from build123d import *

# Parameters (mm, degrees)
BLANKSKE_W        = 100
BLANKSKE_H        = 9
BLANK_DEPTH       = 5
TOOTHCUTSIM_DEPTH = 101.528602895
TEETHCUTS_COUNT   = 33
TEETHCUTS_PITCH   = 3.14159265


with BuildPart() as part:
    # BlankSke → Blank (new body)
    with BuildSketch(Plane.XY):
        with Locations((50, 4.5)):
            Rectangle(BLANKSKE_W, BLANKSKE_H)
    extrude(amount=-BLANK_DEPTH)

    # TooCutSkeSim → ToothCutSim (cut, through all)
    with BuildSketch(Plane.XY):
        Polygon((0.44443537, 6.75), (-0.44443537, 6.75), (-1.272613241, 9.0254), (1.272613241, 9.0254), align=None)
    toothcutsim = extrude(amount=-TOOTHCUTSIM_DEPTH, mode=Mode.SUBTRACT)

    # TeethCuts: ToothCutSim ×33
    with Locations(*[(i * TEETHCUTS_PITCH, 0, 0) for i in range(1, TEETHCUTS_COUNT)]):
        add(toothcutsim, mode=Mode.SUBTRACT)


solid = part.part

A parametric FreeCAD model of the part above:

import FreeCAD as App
import Part
import Sketcher
from FreeCAD import Vector
Q = App.Units.Quantity

doc = App.newDocument("Part")
body = doc.addObject("PartDesign::Body", "Body")

# Sketch on XY plane
sketch1 = body.newObject("Sketcher::SketchObject", "Sketch")
sketch1.AttachmentSupport = (doc.getObject("XY_Plane"), [""])
sketch1.MapMode = "FlatFace"
sketch1.addGeometry([
    Part.LineSegment(Vector(0, 9, 0), Vector(0, 0, 0)),
    Part.LineSegment(Vector(0, 0, 0), Vector(100, 0, 0)),
    Part.LineSegment(Vector(100, 0, 0), Vector(100, 9, 0)),
    Part.LineSegment(Vector(100, 9, 0), Vector(0, 9, 0)),
], False)
sketch1.addConstraint([
    Sketcher.Constraint("Coincident", 0, 2, 1, 1),
    Sketcher.Constraint("Coincident", 1, 2, 2, 1),
    Sketcher.Constraint("Coincident", 2, 2, 3, 1),
    Sketcher.Constraint("Coincident", 3, 2, 0, 1),
    Sketcher.Constraint("Vertical", 0),
    Sketcher.Constraint("Horizontal", 1),
    Sketcher.Constraint("Vertical", 2),
    Sketcher.Constraint("Horizontal", 3),
    Sketcher.Constraint("Coincident", 0, 2, -1, 1),
    Sketcher.Constraint("DistanceX", 1, 1, 1, 2, Q("100 mm")),
    Sketcher.Constraint("DistanceY", 0, 2, 0, 1, Q("9 mm")),
])
pad1 = body.newObject("PartDesign::Pad", "Pad")
pad1.Profile = sketch1
pad1.Length = 5
pad1.Reversed = True

# Sketch on XY plane
sketch2 = body.newObject("Sketcher::SketchObject", "Sketch001")
sketch2.AttachmentSupport = (doc.getObject("XY_Plane"), [""])
sketch2.MapMode = "FlatFace"
sketch2.addGeometry([
    Part.LineSegment(Vector(-0.444435, 6.75, 0), Vector(0.444435, 6.75, 0)),
    Part.LineSegment(Vector(0.444435, 6.75, 0), Vector(1.272613, 9.0254, 0)),
    Part.LineSegment(Vector(1.272613, 9.0254, 0), Vector(-1.272613, 9.0254, 0)),
    Part.LineSegment(Vector(-1.272613, 9.0254, 0), Vector(-0.444435, 6.75, 0)),
], False)
sketch2.addConstraint([
    Sketcher.Constraint("Coincident", 0, 2, 1, 1),
    Sketcher.Constraint("Coincident", 1, 2, 2, 1),
    Sketcher.Constraint("Coincident", 2, 2, 3, 1),
    Sketcher.Constraint("Coincident", 3, 2, 0, 1),
    Sketcher.Constraint("Horizontal", 0),
    Sketcher.Constraint("Horizontal", 2),
    Sketcher.Constraint("Equal", 1, 3),
    Sketcher.Constraint("Angle", 1, Q("70 deg")),
    Sketcher.Constraint("DistanceY", -1, 1, 0, 2, Q("6.75 mm")),
    Sketcher.Constraint("DistanceX", 0, 1, 0, 2, Q("0.888871 mm")),
    Sketcher.Constraint("DistanceY", -1, 1, 1, 2, Q("9.0254 mm")),
    Sketcher.Constraint("DistanceX", -1, 1, 0, 2, Q("0.444435 mm")),
])
pocket1 = body.newObject("PartDesign::Pocket", "Pocket")
pocket1.Profile = sketch2
pocket1.Type = "ThroughAll"
doc.recompute()

linearpattern = body.newObject("PartDesign::LinearPattern", "LinearPattern")
linearpattern.Originals = [pocket1]
linearpattern.Direction = (doc.getObject("X_Axis"), [""])
linearpattern.Mode = "offset"
linearpattern.Offset = 3.141593
linearpattern.Occurrences = 33
body.Tip = linearpattern

doc.recompute()
